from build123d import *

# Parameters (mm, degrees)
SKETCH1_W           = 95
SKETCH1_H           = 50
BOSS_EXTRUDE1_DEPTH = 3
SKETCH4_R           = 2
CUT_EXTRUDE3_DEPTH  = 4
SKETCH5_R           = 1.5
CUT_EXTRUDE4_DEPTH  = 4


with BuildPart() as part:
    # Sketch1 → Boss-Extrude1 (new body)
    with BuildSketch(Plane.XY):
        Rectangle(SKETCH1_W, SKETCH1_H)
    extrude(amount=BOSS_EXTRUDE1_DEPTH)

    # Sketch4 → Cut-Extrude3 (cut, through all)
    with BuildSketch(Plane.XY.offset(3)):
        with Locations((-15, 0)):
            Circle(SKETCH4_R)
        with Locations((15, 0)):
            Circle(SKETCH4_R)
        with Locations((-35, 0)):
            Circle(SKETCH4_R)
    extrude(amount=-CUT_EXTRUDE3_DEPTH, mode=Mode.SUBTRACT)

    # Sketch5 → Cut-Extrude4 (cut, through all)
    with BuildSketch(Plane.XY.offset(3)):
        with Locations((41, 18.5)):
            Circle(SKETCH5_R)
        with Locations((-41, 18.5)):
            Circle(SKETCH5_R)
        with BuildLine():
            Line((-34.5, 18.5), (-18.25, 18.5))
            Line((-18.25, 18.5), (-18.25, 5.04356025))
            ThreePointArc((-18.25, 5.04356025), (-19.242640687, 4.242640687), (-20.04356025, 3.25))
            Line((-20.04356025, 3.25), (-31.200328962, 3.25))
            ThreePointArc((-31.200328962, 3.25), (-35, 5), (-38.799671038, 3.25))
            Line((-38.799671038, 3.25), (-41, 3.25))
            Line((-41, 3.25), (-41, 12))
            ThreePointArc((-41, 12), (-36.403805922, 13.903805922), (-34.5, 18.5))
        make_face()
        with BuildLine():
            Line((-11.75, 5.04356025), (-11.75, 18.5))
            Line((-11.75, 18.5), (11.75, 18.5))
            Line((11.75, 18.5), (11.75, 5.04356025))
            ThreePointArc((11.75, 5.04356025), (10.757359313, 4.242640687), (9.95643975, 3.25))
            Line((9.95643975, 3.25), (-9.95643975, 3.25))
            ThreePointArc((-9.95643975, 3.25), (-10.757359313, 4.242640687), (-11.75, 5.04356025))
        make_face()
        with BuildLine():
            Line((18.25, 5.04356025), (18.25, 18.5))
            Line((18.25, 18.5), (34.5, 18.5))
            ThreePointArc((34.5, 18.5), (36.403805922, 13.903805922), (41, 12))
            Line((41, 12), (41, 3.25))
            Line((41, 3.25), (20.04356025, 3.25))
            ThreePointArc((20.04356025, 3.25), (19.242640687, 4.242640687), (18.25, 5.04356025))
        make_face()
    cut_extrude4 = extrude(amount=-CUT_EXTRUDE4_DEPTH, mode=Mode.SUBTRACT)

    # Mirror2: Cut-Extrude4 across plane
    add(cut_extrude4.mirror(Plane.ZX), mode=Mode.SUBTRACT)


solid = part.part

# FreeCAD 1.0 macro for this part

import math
import FreeCAD as App
import Part
import Sketcher
Q = App.Units.Quantity


def add_polygon(sketch, points):
    """Adds a closed chain of lines whose ends are joined by coincident constraints."""
    first, n = sketch.GeometryCount, len(points)
    for a, b in zip(points, points[1:] + points[:1]):
        sketch.addGeometry(Part.LineSegment(App.Vector(*a, 0), App.Vector(*b, 0)), False)
    for i in range(n):
        sketch.addConstraint(Sketcher.Constraint("Coincident", first + i, 2, first + (i + 1) % n, 1))

doc = App.newDocument("Part")
body = doc.addObject("PartDesign::Body", "Body")

# Sketch on XY plane
sketch1 = body.newObject("Sketcher::SketchObject", "Sketch")
sketch1.AttachmentSupport = (doc.getObject("XY_Plane"), [""])
sketch1.MapMode = "FlatFace"
add_polygon(sketch1, [(-48, 25), (-48, -25), (48, -25), (48, 25)])  # lines 0-3
sketch1.addConstraint([
    Sketcher.Constraint("Vertical", 0),
    Sketcher.Constraint("Horizontal", 1),
    Sketcher.Constraint("Vertical", 2),
    Sketcher.Constraint("Horizontal", 3),
    Sketcher.Constraint("Symmetric", 0, 2, 2, 2, -1, 1),
    Sketcher.Constraint("DistanceX", 1, 1, 1, 2, Q("95 mm")),
    Sketcher.Constraint("DistanceY", 0, 2, 0, 1, Q("50 mm")),
])
pad1 = body.newObject("PartDesign::Pad", "Pad")
pad1.Profile = sketch1
pad1.Length = 3

# Sketch on XY plane
sketch2 = body.newObject("Sketcher::SketchObject", "Sketch001")
sketch2.AttachmentSupport = (doc.getObject("XY_Plane"), [""])
sketch2.MapMode = "FlatFace"
sketch2.AttachmentOffset = App.Placement(App.Vector(0, 0, 3), App.Rotation())
sketch2.addGeometry([
    Part.Circle(App.Vector(-15, 0, 0), App.Vector(0, 0, 1), 2),
    Part.Circle(App.Vector(15, 0, 0), App.Vector(0, 0, 1), 2),
    Part.Circle(App.Vector(-35, 0, 0), App.Vector(0, 0, 1), 2),
], False)
sketch2.addConstraint([
    Sketcher.Constraint("Equal", 0, 1),
    Sketcher.Constraint("Equal", 1, 2),
    Sketcher.Constraint("Symmetric", 0, 3, 1, 3, -1, 1),
    Sketcher.Constraint("PointOnObject", 0, 3, -1),
    Sketcher.Constraint("PointOnObject", 2, 3, -1),
    Sketcher.Constraint("Diameter", 0, Q("4 mm")),
    Sketcher.Constraint("DistanceX", 0, 3, -1, 1, Q("15 mm")),
    Sketcher.Constraint("DistanceX", 2, 3, -1, 1, Q("35 mm")),
])
pocket1 = body.newObject("PartDesign::Pocket", "Pocket")
pocket1.Profile = sketch2
pocket1.Type = "ThroughAll"

# Sketch on XY plane
sketch3 = body.newObject("Sketcher::SketchObject", "Sketch002")
sketch3.AttachmentSupport = (doc.getObject("XY_Plane"), [""])
sketch3.MapMode = "FlatFace"
sketch3.AttachmentOffset = App.Placement(App.Vector(0, 0, 3), App.Rotation())
sketch3.addGeometry([
    Part.Circle(App.Vector(41, 18.5, 0), App.Vector(0, 0, 1), 1.5),  # 0
    Part.Circle(App.Vector(-41, 18.5, 0), App.Vector(0, 0, 1), 1.5),  # 1
    Part.LineSegment(App.Vector(-18.2, 18.5, 0), App.Vector(-34.5, 18.5, 0)),  # 2
    Part.ArcOfCircle(Part.Circle(App.Vector(-41, 18.5, 0), App.Vector(0, 0, 1), 6.5), math.radians(-90), math.radians(0)),  # 3
    Part.LineSegment(App.Vector(-41, 12, 0), App.Vector(-41, 3.2, 0)),  # 4
    Part.LineSegment(App.Vector(-41, 3.2, 0), App.Vector(-38.8, 3.2, 0)),  # 5
    Part.ArcOfCircle(Part.Circle(App.Vector(-35, 0, 0), App.Vector(0, 0, 1), 5), math.radians(41), math.radians(139)),  # 6
    Part.LineSegment(App.Vector(-31.2, 3.2, 0), App.Vector(-20, 3.2, 0)),  # 7
    Part.ArcOfCircle(Part.Circle(App.Vector(-15, 0, 0), App.Vector(0, 0, 1), 6), math.radians(123), math.radians(147)),  # 8
    Part.LineSegment(App.Vector(-18.2, 5, 0), App.Vector(-18.2, 18.5, 0)),  # 9
    Part.LineSegment(App.Vector(-11.8, 18.5, 0), App.Vector(-11.8, 5, 0)),  # 10
    Part.ArcOfCircle(Part.Circle(App.Vector(-15, 0, 0), App.Vector(0, 0, 1), 6), math.radians(33), math.radians(57)),  # 11
    Part.LineSegment(App.Vector(-10, 3.2, 0), App.Vector(10, 3.2, 0)),  # 12
    Part.ArcOfCircle(Part.Circle(App.Vector(15, 0, 0), App.Vector(0, 0, 1), 6), math.radians(123), math.radians(147)),  # 13
    Part.LineSegment(App.Vector(11.8, 5, 0), App.Vector(11.8, 18.5, 0)),  # 14
    Part.LineSegment(App.Vector(11.8, 18.5, 0), App.Vector(-11.8, 18.5, 0)),  # 15
    Part.LineSegment(App.Vector(18.2, 18.5, 0), App.Vector(18.2, 5, 0)),  # 16
    Part.ArcOfCircle(Part.Circle(App.Vector(15, 0, 0), App.Vector(0, 0, 1), 6), math.radians(33), math.radians(57)),  # 17
    Part.LineSegment(App.Vector(20, 3.2, 0), App.Vector(41, 3.2, 0)),  # 18
    Part.LineSegment(App.Vector(41, 3.2, 0), App.Vector(41, 12, 0)),  # 19
    Part.ArcOfCircle(Part.Circle(App.Vector(41, 18.5, 0), App.Vector(0, 0, 1), 6.5), math.radians(180), math.radians(270)),  # 20
    Part.LineSegment(App.Vector(34.5, 18.5, 0), App.Vector(18.2, 18.5, 0)),  # 21
], False)
sketch3.addConstraint([
    Sketcher.Constraint("Coincident", 2, 2, 3, 2),
    Sketcher.Constraint("Coincident", 3, 1, 4, 1),
    Sketcher.Constraint("Coincident", 4, 2, 5, 1),
    Sketcher.Constraint("Coincident", 5, 2, 6, 2),
    Sketcher.Constraint("Coincident", 6, 1, 7, 1),
    Sketcher.Constraint("Coincident", 7, 2, 8, 2),
    Sketcher.Constraint("Coincident", 8, 1, 9, 1),
    Sketcher.Constraint("Coincident", 9, 2, 2, 1),
    Sketcher.Constraint("Coincident", 10, 2, 11, 2),
    Sketcher.Constraint("Coincident", 11, 1, 12, 1),
    Sketcher.Constraint("Coincident", 12, 2, 13, 2),
    Sketcher.Constraint("Coincident", 13, 1, 14, 1),
    Sketcher.Constraint("Coincident", 14, 2, 15, 1),
    Sketcher.Constraint("Coincident", 15, 2, 10, 1),
    Sketcher.Constraint("Coincident", 16, 2, 17, 2),
    Sketcher.Constraint("Coincident", 17, 1, 18, 1),
    Sketcher.Constraint("Coincident", 18, 2, 19, 1),
    Sketcher.Constraint("Coincident", 19, 2, 20, 2),
    Sketcher.Constraint("Coincident", 20, 1, 21, 1),
    Sketcher.Constraint("Coincident", 21, 2, 16, 1),
    Sketcher.Constraint("Horizontal", 2),
    Sketcher.Constraint("Vertical", 4),
    Sketcher.Constraint("Horizontal", 5),
    Sketcher.Constraint("Horizontal", 7),
    Sketcher.Constraint("Vertical", 9),
    Sketcher.Constraint("Vertical", 10),
    Sketcher.Constraint("Horizontal", 12),
    Sketcher.Constraint("Vertical", 14),
    Sketcher.Constraint("Horizontal", 15),
    Sketcher.Constraint("Vertical", 16),
    Sketcher.Constraint("Horizontal", 18),
    Sketcher.Constraint("Vertical", 19),
    Sketcher.Constraint("Horizontal", 21),
    Sketcher.Constraint("Coincident", 3, 3, 1, 3),
    Sketcher.Constraint("Coincident", 11, 3, 8, 3),
    Sketcher.Constraint("Coincident", 17, 3, 13, 3),
    Sketcher.Constraint("Coincident", 20, 3, 0, 3),
    Sketcher.Constraint("Equal", 0, 1),
    Sketcher.Constraint("Equal", 8, 11),
    Sketcher.Constraint("Equal", 11, 13),
    Sketcher.Constraint("Equal", 13, 17),
    Sketcher.Constraint("Equal", 3, 20),
    Sketcher.Constraint("Symmetric", 8, 3, 13, 3, -1, 1),
    Sketcher.Constraint("Symmetric", 0, 3, 1, 3, -2),
    Sketcher.Constraint("Symmetric", 10, 2, 13, 1, -2),
    Sketcher.Constraint("Symmetric", 4, 2, 18, 2, -2),
    Sketcher.Constraint("Symmetric", 9, 2, 21, 2, -2),
    Sketcher.Constraint("PointOnObject", 6, 3, -1),
    Sketcher.Constraint("Horizontal", 20, 3, 2, 2),
    Sketcher.Constraint("Horizontal", 5, 2, 6, 1),
    Sketcher.Constraint("Horizontal", 8, 1, 10, 2),
    Sketcher.Constraint("Horizontal", 7, 2, 11, 1),
    Sketcher.Constraint("Horizontal", 9, 2, 14, 2),
    Sketcher.Constraint("Vertical", 1, 3, 3, 1),
    Sketcher.Constraint("Diameter", 0, Q("3 mm")),
    Sketcher.Constraint("Radius", 6, Q("5 mm")),
    Sketcher.Constraint("Radius", 8, Q("6 mm")),
    Sketcher.Constraint("Radius", 3, Q("6.5 mm")),
    Sketcher.Constraint("DistanceX", 15, 2, 15, 1, Q("23.5 mm")),
    Sketcher.Constraint("DistanceX", -1, 1, 0, 3, Q("41 mm")),
    Sketcher.Constraint("DistanceX", 6, 3, -1, 1, Q("35 mm")),
    Sketcher.Constraint("DistanceX", 8, 3, -1, 1, Q("15 mm")),
    Sketcher.Constraint("DistanceY", -1, 1, 3, 1, Q("12 mm")),
    Sketcher.Constraint("DistanceY", 4, 2, 4, 1, Q("8.75 mm")),
])
pocket2 = body.newObject("PartDesign::Pocket", "Pocket001")
pocket2.Profile = sketch3
pocket2.Type = "ThroughAll"
doc.recompute()

mirrored = body.newObject("PartDesign::Mirrored", "Mirrored")
mirrored.Originals = [pocket2]
mirrored.MirrorPlane = (doc.getObject("XZ_Plane"), [""])
body.Tip = mirrored

doc.recompute()
